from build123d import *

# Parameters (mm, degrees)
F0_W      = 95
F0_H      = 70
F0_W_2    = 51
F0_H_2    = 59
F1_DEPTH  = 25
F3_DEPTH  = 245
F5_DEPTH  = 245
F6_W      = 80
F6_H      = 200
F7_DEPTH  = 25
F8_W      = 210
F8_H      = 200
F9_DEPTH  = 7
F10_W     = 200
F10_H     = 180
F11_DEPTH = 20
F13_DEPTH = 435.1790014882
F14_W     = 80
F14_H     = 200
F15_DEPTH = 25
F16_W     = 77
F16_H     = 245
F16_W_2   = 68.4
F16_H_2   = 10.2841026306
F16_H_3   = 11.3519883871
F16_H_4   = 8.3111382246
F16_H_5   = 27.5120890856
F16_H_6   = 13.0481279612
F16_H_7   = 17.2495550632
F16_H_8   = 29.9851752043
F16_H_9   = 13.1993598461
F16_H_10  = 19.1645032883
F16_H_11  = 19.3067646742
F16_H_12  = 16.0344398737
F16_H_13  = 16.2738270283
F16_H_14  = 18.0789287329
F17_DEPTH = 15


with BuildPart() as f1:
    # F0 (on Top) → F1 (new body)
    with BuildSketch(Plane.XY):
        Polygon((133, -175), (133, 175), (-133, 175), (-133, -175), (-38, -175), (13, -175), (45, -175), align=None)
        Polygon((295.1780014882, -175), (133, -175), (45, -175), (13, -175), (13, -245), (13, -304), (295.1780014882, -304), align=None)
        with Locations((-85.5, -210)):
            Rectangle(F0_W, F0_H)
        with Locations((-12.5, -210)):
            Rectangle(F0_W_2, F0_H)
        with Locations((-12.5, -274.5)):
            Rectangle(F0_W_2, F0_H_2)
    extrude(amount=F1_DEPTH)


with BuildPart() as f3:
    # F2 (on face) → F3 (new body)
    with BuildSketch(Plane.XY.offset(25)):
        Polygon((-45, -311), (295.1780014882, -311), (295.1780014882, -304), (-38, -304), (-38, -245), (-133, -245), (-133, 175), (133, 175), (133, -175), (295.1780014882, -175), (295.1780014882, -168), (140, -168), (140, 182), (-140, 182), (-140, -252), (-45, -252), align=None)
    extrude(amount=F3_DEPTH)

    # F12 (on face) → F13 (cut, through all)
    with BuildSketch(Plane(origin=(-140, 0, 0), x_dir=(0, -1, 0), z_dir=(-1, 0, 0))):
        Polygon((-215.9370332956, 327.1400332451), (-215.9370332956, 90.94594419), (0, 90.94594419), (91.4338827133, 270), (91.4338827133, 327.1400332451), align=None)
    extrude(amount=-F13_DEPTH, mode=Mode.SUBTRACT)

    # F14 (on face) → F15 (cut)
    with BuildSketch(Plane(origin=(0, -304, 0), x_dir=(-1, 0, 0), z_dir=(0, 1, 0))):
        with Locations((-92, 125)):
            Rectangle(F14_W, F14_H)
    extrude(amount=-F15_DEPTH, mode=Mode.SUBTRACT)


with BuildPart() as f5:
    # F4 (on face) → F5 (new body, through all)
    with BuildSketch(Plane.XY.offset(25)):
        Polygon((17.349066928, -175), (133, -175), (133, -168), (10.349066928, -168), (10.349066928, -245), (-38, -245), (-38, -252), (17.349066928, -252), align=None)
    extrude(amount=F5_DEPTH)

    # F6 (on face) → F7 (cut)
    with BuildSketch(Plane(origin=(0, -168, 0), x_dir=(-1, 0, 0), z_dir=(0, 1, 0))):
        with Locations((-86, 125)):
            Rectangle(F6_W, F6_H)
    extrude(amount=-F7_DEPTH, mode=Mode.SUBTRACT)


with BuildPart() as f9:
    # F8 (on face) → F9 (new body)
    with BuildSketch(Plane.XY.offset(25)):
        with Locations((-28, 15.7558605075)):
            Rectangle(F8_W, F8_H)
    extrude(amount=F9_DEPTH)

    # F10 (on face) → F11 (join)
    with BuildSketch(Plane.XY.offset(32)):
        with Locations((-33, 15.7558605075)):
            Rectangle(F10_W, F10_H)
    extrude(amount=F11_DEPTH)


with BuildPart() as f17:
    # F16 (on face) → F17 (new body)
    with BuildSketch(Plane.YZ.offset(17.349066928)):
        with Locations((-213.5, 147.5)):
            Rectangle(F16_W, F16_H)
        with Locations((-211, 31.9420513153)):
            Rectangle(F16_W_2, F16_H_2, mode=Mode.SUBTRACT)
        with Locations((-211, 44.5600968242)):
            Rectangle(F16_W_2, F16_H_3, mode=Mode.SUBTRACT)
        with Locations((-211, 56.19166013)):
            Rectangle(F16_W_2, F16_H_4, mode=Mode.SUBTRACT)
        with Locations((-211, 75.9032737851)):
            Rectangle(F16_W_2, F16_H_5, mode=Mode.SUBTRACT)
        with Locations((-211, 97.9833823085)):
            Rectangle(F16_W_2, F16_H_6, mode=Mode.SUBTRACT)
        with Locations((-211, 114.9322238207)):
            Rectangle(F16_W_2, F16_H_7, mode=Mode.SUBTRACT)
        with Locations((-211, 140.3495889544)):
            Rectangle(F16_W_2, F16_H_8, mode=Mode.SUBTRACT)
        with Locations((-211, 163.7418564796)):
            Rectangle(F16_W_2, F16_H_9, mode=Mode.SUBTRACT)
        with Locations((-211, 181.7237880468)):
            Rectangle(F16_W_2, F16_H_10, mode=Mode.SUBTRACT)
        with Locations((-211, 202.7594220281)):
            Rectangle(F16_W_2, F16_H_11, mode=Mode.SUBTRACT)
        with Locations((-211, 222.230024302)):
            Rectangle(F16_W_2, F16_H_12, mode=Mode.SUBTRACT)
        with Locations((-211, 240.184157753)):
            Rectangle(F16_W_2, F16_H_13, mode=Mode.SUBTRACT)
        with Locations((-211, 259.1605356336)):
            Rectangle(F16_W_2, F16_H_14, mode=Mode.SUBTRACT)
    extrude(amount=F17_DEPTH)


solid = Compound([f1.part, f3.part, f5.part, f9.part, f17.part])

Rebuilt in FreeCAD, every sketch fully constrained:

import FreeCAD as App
import Part
import Sketcher

V = App.Vector


def add_polygon(sketch, points):
    """Adds a closed chain of lines whose ends are joined by coincident constraints."""
    first, n = sketch.GeometryCount, len(points)
    for a, b in zip(points, points[1:] + points[:1]):
        sketch.addGeometry(Part.LineSegment(App.Vector(*a, 0), App.Vector(*b, 0)), False)
    for i in range(n):
        sketch.addConstraint(Sketcher.Constraint("Coincident", first + i, 2, first + (i + 1) % n, 1))

doc = App.newDocument("Part")
body = doc.addObject("PartDesign::Body", "Body")

sketch1 = body.newObject("Sketcher::SketchObject", "Sketch")
sketch1.AttachmentSupport = (doc.getObject("XY_Plane"), [""])
sketch1.MapMode = "FlatFace"
add_polygon(sketch1, [(133, -175), (133, 175), (-133, 175), (-133, -245), (-38, -245), (-38, -304), (295, -304), (295, -175)])
sketch1.addConstraint([
    Sketcher.Constraint("Vertical", 0),
    Sketcher.Constraint("Horizontal", 1),
    Sketcher.Constraint("Vertical", 2),
    Sketcher.Constraint("Horizontal", 3),
    Sketcher.Constraint("Vertical", 4),
    Sketcher.Constraint("Horizontal", 5),
    Sketcher.Constraint("Vertical", 6),
    Sketcher.Constraint("Horizontal", 7),
    Sketcher.Constraint("Symmetric", 1, 2, 7, 2, -1, 1),
    Sketcher.Constraint("DistanceX", 1, 2, 1, 1, 266.0),
    Sketcher.Constraint("DistanceX", 3, 1, 3, 2, 95.0),
    Sketcher.Constraint("DistanceY", 0, 1, 0, 2, 350.0),
    Sketcher.Constraint("DistanceY", 2, 2, 2, 1, 420.0),
    Sketcher.Constraint("DistanceY", 4, 2, 4, 1, 59.0),
    Sketcher.Constraint("DistanceX", 5, 1, 5, 2, 333.178001),
])
pad1 = body.newObject("PartDesign::Pad", "Pad")
pad1.Profile = sketch1
pad1.Length = 25
body2 = doc.addObject("PartDesign::Body", "Body001")

sketch2 = body2.newObject("Sketcher::SketchObject", "Sketch001")
sketch2.AttachmentSupport = (doc.getObject("XY_Plane001"), [""])
sketch2.MapMode = "FlatFace"
sketch2.AttachmentOffset = App.Placement(V(0, 0, 25), App.Rotation())
add_polygon(sketch2, [(-45, -311), (295, -311), (295, -304), (-38, -304), (-38, -245), (-133, -245), (-133, 175), (133, 175), (133, -175), (295, -175), (295, -168), (140, -168), (140, 182), (-140, 182), (-140, -252), (-45, -252)])
sketch2.addConstraint([
    Sketcher.Constraint("Horizontal", 0),
    Sketcher.Constraint("Vertical", 1),
    Sketcher.Constraint("Horizontal", 2),
    Sketcher.Constraint("Vertical", 3),
    Sketcher.Constraint("Horizontal", 4),
    Sketcher.Constraint("Vertical", 5),
    Sketcher.Constraint("Horizontal", 6),
    Sketcher.Constraint("Vertical", 7),
    Sketcher.Constraint("Horizontal", 8),
    Sketcher.Constraint("Vertical", 9),
    Sketcher.Constraint("Horizontal", 10),
    Sketcher.Constraint("Vertical", 11),
    Sketcher.Constraint("Horizontal", 12),
    Sketcher.Constraint("Vertical", 13),
    Sketcher.Constraint("Horizontal", 14),
    Sketcher.Constraint("Vertical", 15),
    Sketcher.Constraint("Symmetric", 5, 2, 7, 2, -1, 1),
    Sketcher.Constraint("Vertical", 1, 2, 8, 2),
    Sketcher.Constraint("Equal", 4, 14),
    Sketcher.Constraint("Equal", 1, 9),
    Sketcher.Constraint("Equal", 7, 11),
    Sketcher.Constraint("Equal", 3, 15),
    Sketcher.Constraint("DistanceX", 4, 2, 4, 1, 95.0),
    Sketcher.Constraint("DistanceX", 6, 1, 6, 2, 266.0),
    Sketcher.Constraint("DistanceX", 12, 2, 12, 1, 280.0),
    Sketcher.Constraint("DistanceY", 1, 1, 1, 2, 7.0),
    Sketcher.Constraint("DistanceY", 3, 1, 3, 2, 59.0),
    Sketcher.Constraint("DistanceY", 5, 1, 5, 2, 420.0),
    Sketcher.Constraint("DistanceY", 7, 2, 7, 1, 350.0),
    Sketcher.Constraint("DistanceX", -1, 1, 10, 2, 140.0),
    Sketcher.Constraint("DistanceX", 0, 1, 0, 2, 340.178001),
])
pad2 = body2.newObject("PartDesign::Pad", "Pad001")
pad2.Profile = sketch2
pad2.Length = 245

sketch3 = body2.newObject("Sketcher::SketchObject", "Sketch002")
sketch3.AttachmentSupport = (doc.getObject("YZ_Plane001"), [""])
sketch3.MapMode = "FlatFace"
sketch3.AttachmentOffset = App.Placement(V(0, 0, -140), App.Rotation())
add_polygon(sketch3, [(216, 327), (216, 91), (0, 91), (-91, 270), (-91, 327)])
sketch3.addConstraint([
    Sketcher.Constraint("Vertical", 0),
    Sketcher.Constraint("Horizontal", 1),
    Sketcher.Constraint("Vertical", 3),
    Sketcher.Constraint("Horizontal", 4),
    Sketcher.Constraint("PointOnObject", 1, 2, -2),
    Sketcher.Constraint("DistanceY", -1, 1, 2, 2, 270.0),
    Sketcher.Constraint("DistanceY", 0, 2, 0, 1, 236.194089),
    Sketcher.Constraint("DistanceX", 1, 2, 1, 1, 215.937033),
    Sketcher.Constraint("DistanceX", 4, 1, 4, 2, 307.370916),
    Sketcher.Constraint("DistanceY", 3, 1, 3, 2, 57.140033),
])
pocket1 = body2.newObject("PartDesign::Pocket", "Pocket")
pocket1.Profile = sketch3
pocket1.Type = "ThroughAll"
pocket1.Reversed = True

sketch4 = body2.newObject("Sketcher::SketchObject", "Sketch003")
sketch4.AttachmentSupport = (doc.getObject("XZ_Plane001"), [""])
sketch4.MapMode = "FlatFace"
sketch4.AttachmentOffset = App.Placement(V(0, 0, 304), App.Rotation())
add_polygon(sketch4, [(132, 225), (132, 25), (52, 25), (52, 225)])
sketch4.addConstraint([
    Sketcher.Constraint("Vertical", 0),
    Sketcher.Constraint("Horizontal", 1),
    Sketcher.Constraint("Vertical", 2),
    Sketcher.Constraint("Horizontal", 3),
    Sketcher.Constraint("DistanceX", 1, 2, 1, 1, 80.0),
    Sketcher.Constraint("DistanceY", 0, 2, 0, 1, 200.0),
    Sketcher.Constraint("DistanceX", -1, 1, 0, 2, 132.0),
    Sketcher.Constraint("DistanceY", -1, 1, 0, 2, 25.0),
])
pocket2 = body2.newObject("PartDesign::Pocket", "Pocket001")
pocket2.Profile = sketch4
pocket2.Length = 25
pocket2.Reversed = True
body3 = doc.addObject("PartDesign::Body", "Body002")

sketch5 = body3.newObject("Sketcher::SketchObject", "Sketch004")
sketch5.AttachmentSupport = (doc.getObject("XY_Plane002"), [""])
sketch5.MapMode = "FlatFace"
sketch5.AttachmentOffset = App.Placement(V(0, 0, 25), App.Rotation())
add_polygon(sketch5, [(17, -175), (133, -175), (133, -168), (10, -168), (10, -245), (-38, -245), (-38, -252), (17, -252)])
sketch5.addConstraint([
    Sketcher.Constraint("Horizontal", 0),
    Sketcher.Constraint("Vertical", 1),
    Sketcher.Constraint("Horizontal", 2),
    Sketcher.Constraint("Vertical", 3),
    Sketcher.Constraint("Horizontal", 4),
    Sketcher.Constraint("Vertical", 5),
    Sketcher.Constraint("Horizontal", 6),
    Sketcher.Constraint("Vertical", 7),
    Sketcher.Constraint("Equal", 1, 5),
    Sketcher.Constraint("DistanceY", 1, 1, 1, 2, 7.0),
    Sketcher.Constraint("DistanceY", 3, 2, 3, 1, 77.0),
    Sketcher.Constraint("DistanceX", -1, 1, 0, 2, 133.0),
    Sketcher.Constraint("DistanceY", 0, 2, -1, 1, 175.0),
    Sketcher.Constraint("DistanceX", 4, 2, -1, 1, 38.0),
    Sketcher.Constraint("DistanceX", 3, 2, 6, 2, 7.0),
    Sketcher.Constraint("DistanceX", 0, 1, 0, 2, 115.650933),
])
pad3 = body3.newObject("PartDesign::Pad", "Pad002")
pad3.Profile = sketch5
pad3.Length = 245

sketch6 = body3.newObject("Sketcher::SketchObject", "Sketch005")
sketch6.AttachmentSupport = (doc.getObject("XZ_Plane002"), [""])
sketch6.MapMode = "FlatFace"
sketch6.AttachmentOffset = App.Placement(V(0, 0, 168), App.Rotation())
add_polygon(sketch6, [(126, 225), (126, 25), (46, 25), (46, 225)])
sketch6.addConstraint([
    Sketcher.Constraint("Vertical", 0),
    Sketcher.Constraint("Horizontal", 1),
    Sketcher.Constraint("Vertical", 2),
    Sketcher.Constraint("Horizontal", 3),
    Sketcher.Constraint("DistanceX", 1, 2, 1, 1, 80.0),
    Sketcher.Constraint("DistanceY", 0, 2, 0, 1, 200.0),
    Sketcher.Constraint("DistanceX", -1, 1, 0, 2, 126.0),
    Sketcher.Constraint("DistanceY", -1, 1, 0, 2, 25.0),
])
pocket3 = body3.newObject("PartDesign::Pocket", "Pocket002")
pocket3.Profile = sketch6
pocket3.Length = 25
pocket3.Reversed = True
body4 = doc.addObject("PartDesign::Body", "Body003")

sketch7 = body4.newObject("Sketcher::SketchObject", "Sketch006")
sketch7.AttachmentSupport = (doc.getObject("XY_Plane003"), [""])
sketch7.MapMode = "FlatFace"
sketch7.AttachmentOffset = App.Placement(V(0, 0, 25), App.Rotation())
add_polygon(sketch7, [(-133, 116), (-133, -84), (77, -84), (77, 116)])
sketch7.addConstraint([
    Sketcher.Constraint("Vertical", 0),
    Sketcher.Constraint("Horizontal", 1),
    Sketcher.Constraint("Vertical", 2),
    Sketcher.Constraint("Horizontal", 3),
    Sketcher.Constraint("DistanceX", 1, 1, 1, 2, 210.0),
    Sketcher.Constraint("DistanceY", 0, 2, 0, 1, 200.0),
    Sketcher.Constraint("DistanceX", 0, 2, -1, 1, 133.0),
    Sketcher.Constraint("DistanceY", 0, 2, -1, 1, 84.244139),
])
pad4 = body4.newObject("PartDesign::Pad", "Pad003")
pad4.Profile = sketch7
pad4.Length = 7

sketch8 = body4.newObject("Sketcher::SketchObject", "Sketch007")
sketch8.AttachmentSupport = (doc.getObject("XY_Plane003"), [""])
sketch8.MapMode = "FlatFace"
sketch8.AttachmentOffset = App.Placement(V(0, 0, 32), App.Rotation())
add_polygon(sketch8, [(-133, 106), (-133, -74), (67, -74), (67, 106)])
sketch8.addConstraint([
    Sketcher.Constraint("Vertical", 0),
    Sketcher.Constraint("Horizontal", 1),
    Sketcher.Constraint("Vertical", 2),
    Sketcher.Constraint("Horizontal", 3),
    Sketcher.Constraint("DistanceX", 1, 1, 1, 2, 200.0),
    Sketcher.Constraint("DistanceY", 0, 2, 0, 1, 180.0),
    Sketcher.Constraint("DistanceX", 0, 2, -1, 1, 133.0),
    Sketcher.Constraint("DistanceY", 0, 2, -1, 1, 74.244139),
])
pad5 = body4.newObject("PartDesign::Pad", "Pad004")
pad5.Profile = sketch8
pad5.Length = 20
body5 = doc.addObject("PartDesign::Body", "Body004")

sketch9 = body5.newObject("Sketcher::SketchObject", "Sketch008")
sketch9.AttachmentSupport = (doc.getObject("YZ_Plane004"), [""])
sketch9.MapMode = "FlatFace"
sketch9.AttachmentOffset = App.Placement(V(0, 0, 17.349067), App.Rotation())
add_polygon(sketch9, [(-252, 270), (-252, 25), (-175, 25), (-175, 270)])
add_polygon(sketch9, [(-177, 27), (-245, 27), (-245, 37), (-177, 37)])
add_polygon(sketch9, [(-177, 39), (-245, 39), (-245, 50), (-177, 50)])
add_polygon(sketch9, [(-177, 52), (-245, 52), (-245, 60), (-177, 60)])
add_polygon(sketch9, [(-177, 62), (-245, 62), (-245, 90), (-177, 90)])
add_polygon(sketch9, [(-177, 91), (-245, 91), (-245, 105), (-177, 105)])
add_polygon(sketch9, [(-177, 106), (-245, 106), (-245, 124), (-177, 124)])
add_polygon(sketch9, [(-177, 125), (-245, 125), (-245, 155), (-177, 155)])
add_polygon(sketch9, [(-177, 157), (-245, 157), (-245, 170), (-177, 170)])
add_polygon(sketch9, [(-177, 172), (-245, 172), (-245, 191), (-177, 191)])
add_polygon(sketch9, [(-177, 193), (-245, 193), (-245, 212), (-177, 212)])
add_polygon(sketch9, [(-177, 214), (-245, 214), (-245, 230), (-177, 230)])
add_polygon(sketch9, [(-177, 232), (-245, 232), (-245, 248), (-177, 248)])
add_polygon(sketch9, [(-177, 250), (-245, 250), (-245, 268), (-177, 268)])
sketch9.addConstraint([
    Sketcher.Constraint("Vertical", 0),
    Sketcher.Constraint("Horizontal", 1),
    Sketcher.Constraint("Vertical", 2),
    Sketcher.Constraint("Horizontal", 3),
    Sketcher.Constraint("Horizontal", 4),
    Sketcher.Constraint("Vertical", 5),
    Sketcher.Constraint("Horizontal", 6),
    Sketcher.Constraint("Vertical", 7),
    Sketcher.Constraint("Horizontal", 8),
    Sketcher.Constraint("Vertical", 9),
    Sketcher.Constraint("Horizontal", 10),
    Sketcher.Constraint("Vertical", 11),
    Sketcher.Constraint("Horizontal", 12),
    Sketcher.Constraint("Vertical", 13),
    Sketcher.Constraint("Horizontal", 14),
    Sketcher.Constraint("Vertical", 15),
    Sketcher.Constraint("Horizontal", 16),
    Sketcher.Constraint("Vertical", 17),
    Sketcher.Constraint("Horizontal", 18),
    Sketcher.Constraint("Vertical", 19),
    Sketcher.Constraint("Horizontal", 20),
    Sketcher.Constraint("Vertical", 21),
    Sketcher.Constraint("Horizontal", 22),
    Sketcher.Constraint("Vertical", 23),
    Sketcher.Constraint("Horizontal", 24),
    Sketcher.Constraint("Vertical", 25),
    Sketcher.Constraint("Horizontal", 26),
    Sketcher.Constraint("Vertical", 27),
    Sketcher.Constraint("Horizontal", 28),
    Sketcher.Constraint("Vertical", 29),
    Sketcher.Constraint("Horizontal", 30),
    Sketcher.Constraint("Vertical", 31),
    Sketcher.Constraint("Horizontal", 32),
    Sketcher.Constraint("Vertical", 33),
    Sketcher.Constraint("Horizontal", 34),
    Sketcher.Constraint("Vertical", 35),
    Sketcher.Constraint("Horizontal", 36),
    Sketcher.Constraint("Vertical", 37),
    Sketcher.Constraint("Horizontal", 38),
    Sketcher.Constraint("Vertical", 39),
    Sketcher.Constraint("Horizontal", 40),
    Sketcher.Constraint("Vertical", 41),
    Sketcher.Constraint("Horizontal", 42),
    Sketcher.Constraint("Vertical", 43),
    Sketcher.Constraint("Horizontal", 44),
    Sketcher.Constraint("Vertical", 45),
    Sketcher.Constraint("Horizontal", 46),
    Sketcher.Constraint("Vertical", 47),
    Sketcher.Constraint("Horizontal", 48),
    Sketcher.Constraint("Vertical", 49),
    Sketcher.Constraint("Horizontal", 50),
    Sketcher.Constraint("Vertical", 51),
    Sketcher.Constraint("Horizontal", 52),
    Sketcher.Constraint("Vertical", 53),
    Sketcher.Constraint("Horizontal", 54),
    Sketcher.Constraint("Vertical", 55),
    Sketcher.Constraint("Vertical", 5, 2, 8, 2),
    Sketcher.Constraint("Vertical", 7, 2, 10, 2),
    Sketcher.Constraint("Vertical", 9, 2, 12, 2),
    Sketcher.Constraint("Vertical", 11, 2, 14, 2),
    Sketcher.Constraint("Vertical", 13, 2, 16, 2),
    Sketcher.Constraint("Vertical", 15, 2, 18, 2),
    Sketcher.Constraint("Vertical", 17, 2, 20, 2),
    Sketcher.Constraint("Vertical", 19, 2, 22, 2),
    Sketcher.Constraint("Vertical", 21, 2, 24, 2),
    Sketcher.Constraint("Vertical", 23, 2, 26, 2),
    Sketcher.Constraint("Vertical", 25, 2, 28, 2),
    Sketcher.Constraint("Vertical", 27, 2, 30, 2),
    Sketcher.Constraint("Vertical", 29, 2, 32, 2),
    Sketcher.Constraint("Vertical", 31, 2, 34, 2),
    Sketcher.Constraint("Vertical", 33, 2, 36, 2),
    Sketcher.Constraint("Vertical", 35, 2, 38, 2),
    Sketcher.Constraint("Vertical", 37, 2, 40, 2),
    Sketcher.Constraint("Vertical", 39, 2, 42, 2),
    Sketcher.Constraint("Vertical", 41, 2, 44, 2),
    Sketcher.Constraint("Vertical", 43, 2, 46, 2),
    Sketcher.Constraint("Vertical", 45, 2, 48, 2),
    Sketcher.Constraint("Vertical", 47, 2, 50, 2),
    Sketcher.Constraint("Vertical", 49, 2, 52, 2),
    Sketcher.Constraint("Vertical", 51, 2, 54, 2),
    Sketcher.Constraint("DistanceX", 1, 1, 1, 2, 77.0),
    Sketcher.Constraint("DistanceY", 0, 2, 0, 1, 245.0),
    Sketcher.Constraint("DistanceX", 4, 2, 4, 1, 68.4),
    Sketcher.Constraint("DistanceX", 0, 2, -1, 1, 252.0),
    Sketcher.Constraint("DistanceY", -1, 1, 0, 2, 25.0),
    Sketcher.Constraint("DistanceX", 4, 2, -1, 1, 245.2),
    Sketcher.Constraint("DistanceY", -1, 1, 4, 2, 26.8),
    Sketcher.Constraint("DistanceY", -1, 1, 53, 2, 268.2),
    Sketcher.Constraint("DistanceY", 5, 2, 8, 2, 1.8),
    Sketcher.Constraint("DistanceY", 9, 2, 12, 2, 1.8),
    Sketcher.Constraint("DistanceY", 13, 2, 16, 2, 1.8),
    Sketcher.Constraint("DistanceY", 17, 2, 20, 2, 1.8),
    Sketcher.Constraint("DistanceY", 21, 2, 24, 2, 1.8),
    Sketcher.Constraint("DistanceY", 25, 2, 28, 2, 1.8),
    Sketcher.Constraint("DistanceY", 29, 2, 32, 2, 1.8),
    Sketcher.Constraint("DistanceY", 33, 2, 36, 2, 1.8),
    Sketcher.Constraint("DistanceY", 37, 2, 40, 2, 1.8),
    Sketcher.Constraint("DistanceY", 41, 2, 44, 2, 1.8),
    Sketcher.Constraint("DistanceY", 45, 2, 48, 2, 1.8),
    Sketcher.Constraint("DistanceY", 49, 2, 52, 2, 1.8),
    Sketcher.Constraint("DistanceY", -1, 1, 25, 2, 123.557001),
    Sketcher.Constraint("DistanceY", 9, 1, 9, 2, 11.351988),
    Sketcher.Constraint("DistanceY", 13, 1, 13, 2, 8.311138),
    Sketcher.Constraint("DistanceY", 17, 1, 17, 2, 27.512089),
    Sketcher.Constraint("DistanceY", 33, 1, 33, 2, 13.19936),
    Sketcher.Constraint("DistanceY", 45, 1, 45, 2, 16.03444),
    Sketcher.Constraint("DistanceY", 53, 1, 53, 2, 18.078929),
    Sketcher.Constraint("DistanceY", 5, 1, 5, 2, 10.284103),
    Sketcher.Constraint("DistanceY", 21, 1, 21, 2, 13.048128),
    Sketcher.Constraint("DistanceY", 29, 1, 29, 2, 29.985175),
    Sketcher.Constraint("DistanceY", 37, 1, 37, 2, 19.164503),
    Sketcher.Constraint("DistanceY", 41, 1, 41, 2, 19.306765),
])
pad6 = body5.newObject("PartDesign::Pad", "Pad005")
pad6.Profile = sketch9
pad6.Length = 15

doc.recompute()
